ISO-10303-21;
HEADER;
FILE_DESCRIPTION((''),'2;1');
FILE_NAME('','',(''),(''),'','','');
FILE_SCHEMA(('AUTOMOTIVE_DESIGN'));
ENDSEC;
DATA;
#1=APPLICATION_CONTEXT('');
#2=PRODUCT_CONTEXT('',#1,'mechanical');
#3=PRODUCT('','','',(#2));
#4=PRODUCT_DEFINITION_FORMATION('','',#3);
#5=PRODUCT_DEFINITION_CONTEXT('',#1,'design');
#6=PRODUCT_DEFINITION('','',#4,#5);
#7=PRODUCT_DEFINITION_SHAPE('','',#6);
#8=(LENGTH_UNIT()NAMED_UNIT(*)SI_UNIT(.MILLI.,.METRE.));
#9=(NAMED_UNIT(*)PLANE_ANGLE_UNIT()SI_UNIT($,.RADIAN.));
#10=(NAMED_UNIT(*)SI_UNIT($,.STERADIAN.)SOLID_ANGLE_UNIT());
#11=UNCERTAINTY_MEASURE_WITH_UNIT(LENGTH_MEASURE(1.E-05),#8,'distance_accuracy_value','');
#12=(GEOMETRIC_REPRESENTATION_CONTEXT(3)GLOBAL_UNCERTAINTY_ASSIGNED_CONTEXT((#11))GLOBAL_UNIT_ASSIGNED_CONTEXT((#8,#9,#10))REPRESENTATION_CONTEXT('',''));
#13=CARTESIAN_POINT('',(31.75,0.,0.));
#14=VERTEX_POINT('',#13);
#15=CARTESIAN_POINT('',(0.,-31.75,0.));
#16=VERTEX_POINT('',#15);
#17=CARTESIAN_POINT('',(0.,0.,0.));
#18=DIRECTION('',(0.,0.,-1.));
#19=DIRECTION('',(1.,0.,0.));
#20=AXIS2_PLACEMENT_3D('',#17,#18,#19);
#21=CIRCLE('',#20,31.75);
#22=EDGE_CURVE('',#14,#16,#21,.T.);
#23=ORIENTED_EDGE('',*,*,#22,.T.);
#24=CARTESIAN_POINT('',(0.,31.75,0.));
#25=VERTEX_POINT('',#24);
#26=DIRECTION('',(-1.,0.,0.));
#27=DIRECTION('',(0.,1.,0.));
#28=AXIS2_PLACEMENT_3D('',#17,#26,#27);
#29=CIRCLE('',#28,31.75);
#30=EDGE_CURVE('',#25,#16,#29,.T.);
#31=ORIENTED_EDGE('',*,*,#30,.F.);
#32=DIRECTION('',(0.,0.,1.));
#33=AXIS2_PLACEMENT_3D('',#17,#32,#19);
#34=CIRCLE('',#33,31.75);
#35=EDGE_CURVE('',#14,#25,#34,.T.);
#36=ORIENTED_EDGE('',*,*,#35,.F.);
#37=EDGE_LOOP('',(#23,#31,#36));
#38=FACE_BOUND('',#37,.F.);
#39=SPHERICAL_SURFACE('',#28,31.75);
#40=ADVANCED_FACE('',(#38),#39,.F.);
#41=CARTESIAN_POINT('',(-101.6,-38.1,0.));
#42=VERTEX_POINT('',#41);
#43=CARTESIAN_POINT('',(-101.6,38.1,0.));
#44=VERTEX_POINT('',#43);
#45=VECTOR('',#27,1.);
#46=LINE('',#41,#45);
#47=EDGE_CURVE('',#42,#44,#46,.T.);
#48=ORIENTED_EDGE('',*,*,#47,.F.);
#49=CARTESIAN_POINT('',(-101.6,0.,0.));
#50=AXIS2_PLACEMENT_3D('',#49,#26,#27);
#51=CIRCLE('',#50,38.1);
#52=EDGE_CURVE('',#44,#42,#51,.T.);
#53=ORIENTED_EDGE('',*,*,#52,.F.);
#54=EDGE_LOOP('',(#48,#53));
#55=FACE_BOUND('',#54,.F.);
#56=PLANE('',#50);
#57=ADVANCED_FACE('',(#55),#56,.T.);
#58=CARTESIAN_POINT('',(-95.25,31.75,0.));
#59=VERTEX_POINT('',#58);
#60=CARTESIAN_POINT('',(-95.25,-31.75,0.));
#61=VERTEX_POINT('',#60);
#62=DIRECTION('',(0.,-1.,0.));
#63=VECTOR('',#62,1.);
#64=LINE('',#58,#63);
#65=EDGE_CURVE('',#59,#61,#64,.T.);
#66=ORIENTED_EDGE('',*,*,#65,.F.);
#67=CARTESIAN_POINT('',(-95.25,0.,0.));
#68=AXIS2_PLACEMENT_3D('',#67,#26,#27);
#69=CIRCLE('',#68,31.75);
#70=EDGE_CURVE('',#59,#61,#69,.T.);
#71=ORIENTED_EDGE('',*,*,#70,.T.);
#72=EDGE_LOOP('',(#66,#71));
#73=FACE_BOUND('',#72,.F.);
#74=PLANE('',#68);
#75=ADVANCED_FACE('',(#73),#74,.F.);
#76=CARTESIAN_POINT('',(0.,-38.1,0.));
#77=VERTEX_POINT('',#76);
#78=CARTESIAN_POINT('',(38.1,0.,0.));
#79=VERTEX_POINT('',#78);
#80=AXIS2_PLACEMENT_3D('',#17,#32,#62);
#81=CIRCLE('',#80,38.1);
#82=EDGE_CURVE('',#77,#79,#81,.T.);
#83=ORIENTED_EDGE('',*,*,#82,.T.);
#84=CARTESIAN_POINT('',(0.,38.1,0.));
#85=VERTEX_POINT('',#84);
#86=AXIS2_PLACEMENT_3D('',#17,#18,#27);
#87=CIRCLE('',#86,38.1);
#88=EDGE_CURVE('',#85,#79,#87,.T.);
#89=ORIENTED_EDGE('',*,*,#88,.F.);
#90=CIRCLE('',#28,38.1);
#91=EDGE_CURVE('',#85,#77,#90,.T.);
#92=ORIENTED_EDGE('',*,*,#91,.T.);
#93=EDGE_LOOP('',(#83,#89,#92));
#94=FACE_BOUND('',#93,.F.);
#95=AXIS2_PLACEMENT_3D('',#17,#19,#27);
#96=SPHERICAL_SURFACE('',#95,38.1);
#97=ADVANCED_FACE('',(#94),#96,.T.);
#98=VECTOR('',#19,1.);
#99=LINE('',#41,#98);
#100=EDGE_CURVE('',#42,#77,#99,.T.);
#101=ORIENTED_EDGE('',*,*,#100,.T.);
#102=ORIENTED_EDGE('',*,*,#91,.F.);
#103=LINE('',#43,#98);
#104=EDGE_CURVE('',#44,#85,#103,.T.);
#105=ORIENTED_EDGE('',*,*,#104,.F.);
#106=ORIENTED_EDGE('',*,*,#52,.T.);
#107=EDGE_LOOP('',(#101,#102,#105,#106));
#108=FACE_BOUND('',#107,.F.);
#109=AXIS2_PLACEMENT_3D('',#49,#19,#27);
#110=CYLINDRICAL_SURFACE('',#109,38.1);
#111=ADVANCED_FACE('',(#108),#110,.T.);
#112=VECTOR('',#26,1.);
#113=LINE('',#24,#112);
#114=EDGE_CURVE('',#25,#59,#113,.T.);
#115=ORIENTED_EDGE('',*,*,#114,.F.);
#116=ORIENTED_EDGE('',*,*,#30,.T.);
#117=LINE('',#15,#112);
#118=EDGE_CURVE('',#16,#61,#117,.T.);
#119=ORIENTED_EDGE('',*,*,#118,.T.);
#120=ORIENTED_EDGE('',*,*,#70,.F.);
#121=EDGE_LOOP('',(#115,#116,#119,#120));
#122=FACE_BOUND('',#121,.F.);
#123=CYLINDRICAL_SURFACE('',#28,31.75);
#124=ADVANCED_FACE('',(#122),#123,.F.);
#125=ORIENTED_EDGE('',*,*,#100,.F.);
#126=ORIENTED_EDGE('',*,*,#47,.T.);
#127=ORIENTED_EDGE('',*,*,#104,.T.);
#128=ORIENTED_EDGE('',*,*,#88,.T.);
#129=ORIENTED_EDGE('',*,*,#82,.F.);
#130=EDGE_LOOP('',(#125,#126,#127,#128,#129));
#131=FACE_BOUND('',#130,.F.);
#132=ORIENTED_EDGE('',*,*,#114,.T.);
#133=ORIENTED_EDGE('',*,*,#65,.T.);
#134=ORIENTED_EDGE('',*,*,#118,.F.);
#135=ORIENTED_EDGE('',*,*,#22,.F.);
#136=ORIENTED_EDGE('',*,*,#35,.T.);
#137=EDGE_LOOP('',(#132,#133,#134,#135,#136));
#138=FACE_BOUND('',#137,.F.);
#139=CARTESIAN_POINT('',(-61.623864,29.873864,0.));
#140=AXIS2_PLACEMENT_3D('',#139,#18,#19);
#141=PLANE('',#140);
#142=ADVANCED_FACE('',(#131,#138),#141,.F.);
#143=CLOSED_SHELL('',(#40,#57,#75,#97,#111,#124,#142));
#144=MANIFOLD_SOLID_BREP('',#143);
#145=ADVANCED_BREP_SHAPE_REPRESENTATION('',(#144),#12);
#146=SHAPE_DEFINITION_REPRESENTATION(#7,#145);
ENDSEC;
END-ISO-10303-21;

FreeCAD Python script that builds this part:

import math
import FreeCAD as App
import Part
import Sketcher

V = App.Vector
Q = App.Units.Quantity

doc = App.newDocument("Part")
params = doc.addObject("Spreadsheet::Sheet", "Params")
for row, (alias, value) in enumerate([
    ("sketch1_radius", "1.5 in"),
    ("sketch1_width", "4 in"),
    ("sketch1_radius2", "1.25 in"),
    ("revolution_angle", "180 deg"),
], start=1):
    params.set(f"A{row}", alias)
    params.set(f"B{row}", "=" + value)
    params.setAlias(f"B{row}", alias)

body = doc.addObject("PartDesign::Body", "Body")

sketch1 = doc.addObject("Sketcher::SketchObject", "Sketch")
body.addObject(sketch1)
sketch1.AttachmentSupport = (doc.XY_Plane, [""])
sketch1.MapMode = "FlatFace"
sketch1.addGeometry([
    Part.LineSegment(V(-95, 32, 0), V(-95, 0, 0)),
    Part.LineSegment(V(-95, 0, 0), V(-102, 0, 0)),
    Part.LineSegment(V(-102, 0, 0), V(-102, 38, 0)),
    Part.LineSegment(V(-102, 38, 0), V(0, 38, 0)),
    Part.ArcOfCircle(Part.Circle(V(0, 0, 0), V(0, 0, 1), 38), math.radians(0), math.radians(90)),
    Part.LineSegment(V(38, 0, 0), V(32, 0, 0)),
    Part.ArcOfCircle(Part.Circle(V(0, 0, 0), V(0, 0, 1), 32), math.radians(0), math.radians(90)),
    Part.LineSegment(V(0, 32, 0), V(-95, 32, 0)),
], False)
sketch1.addConstraint([
    Sketcher.Constraint("Coincident", 0, 2, 1, 1),
    Sketcher.Constraint("Coincident", 1, 2, 2, 1),
    Sketcher.Constraint("Coincident", 2, 2, 3, 1),
    Sketcher.Constraint("Tangent", 3, 2, 4, 2),
    Sketcher.Constraint("Coincident", 4, 1, 5, 1),
    Sketcher.Constraint("Coincident", 5, 2, 6, 1),
    Sketcher.Constraint("Tangent", 6, 2, 7, 1),
    Sketcher.Constraint("Coincident", 7, 2, 0, 1),
    Sketcher.Constraint("Vertical", 0),
    Sketcher.Constraint("Horizontal", 1),
    Sketcher.Constraint("Vertical", 2),
    Sketcher.Constraint("Horizontal", 3),
    Sketcher.Constraint("Horizontal", 5),
    Sketcher.Constraint("Horizontal", 7),
    Sketcher.Constraint("Coincident", 4, 3, -1, 1),
    Sketcher.Constraint("Coincident", 6, 3, -1, 1),
    Sketcher.Constraint("PointOnObject", 0, 2, -1),
    Sketcher.Constraint("PointOnObject", 4, 1, -1),
    Sketcher.Constraint("Equal", 1, 5),
    Sketcher.Constraint("Radius", 4, Q("1.5 in")),
    Sketcher.Constraint("DistanceX", 3, 1, 3, 2, Q("4 in")),
    Sketcher.Constraint("Radius", 6, Q("1.25 in")),
])
sketch1.setExpression("Constraints[19]", "Params.sketch1_radius")
sketch1.setExpression("Constraints[20]", "Params.sketch1_width")
sketch1.setExpression("Constraints[21]", "Params.sketch1_radius2")
revolution = doc.addObject("PartDesign::Revolution", "Revolution")
body.addObject(revolution)
revolution.Profile = sketch1
revolution.ReferenceAxis = (sketch1, ["H_Axis"])
revolution.setExpression("Angle", "Params.revolution_angle")
revolution.Reversed = True

doc.recompute()
